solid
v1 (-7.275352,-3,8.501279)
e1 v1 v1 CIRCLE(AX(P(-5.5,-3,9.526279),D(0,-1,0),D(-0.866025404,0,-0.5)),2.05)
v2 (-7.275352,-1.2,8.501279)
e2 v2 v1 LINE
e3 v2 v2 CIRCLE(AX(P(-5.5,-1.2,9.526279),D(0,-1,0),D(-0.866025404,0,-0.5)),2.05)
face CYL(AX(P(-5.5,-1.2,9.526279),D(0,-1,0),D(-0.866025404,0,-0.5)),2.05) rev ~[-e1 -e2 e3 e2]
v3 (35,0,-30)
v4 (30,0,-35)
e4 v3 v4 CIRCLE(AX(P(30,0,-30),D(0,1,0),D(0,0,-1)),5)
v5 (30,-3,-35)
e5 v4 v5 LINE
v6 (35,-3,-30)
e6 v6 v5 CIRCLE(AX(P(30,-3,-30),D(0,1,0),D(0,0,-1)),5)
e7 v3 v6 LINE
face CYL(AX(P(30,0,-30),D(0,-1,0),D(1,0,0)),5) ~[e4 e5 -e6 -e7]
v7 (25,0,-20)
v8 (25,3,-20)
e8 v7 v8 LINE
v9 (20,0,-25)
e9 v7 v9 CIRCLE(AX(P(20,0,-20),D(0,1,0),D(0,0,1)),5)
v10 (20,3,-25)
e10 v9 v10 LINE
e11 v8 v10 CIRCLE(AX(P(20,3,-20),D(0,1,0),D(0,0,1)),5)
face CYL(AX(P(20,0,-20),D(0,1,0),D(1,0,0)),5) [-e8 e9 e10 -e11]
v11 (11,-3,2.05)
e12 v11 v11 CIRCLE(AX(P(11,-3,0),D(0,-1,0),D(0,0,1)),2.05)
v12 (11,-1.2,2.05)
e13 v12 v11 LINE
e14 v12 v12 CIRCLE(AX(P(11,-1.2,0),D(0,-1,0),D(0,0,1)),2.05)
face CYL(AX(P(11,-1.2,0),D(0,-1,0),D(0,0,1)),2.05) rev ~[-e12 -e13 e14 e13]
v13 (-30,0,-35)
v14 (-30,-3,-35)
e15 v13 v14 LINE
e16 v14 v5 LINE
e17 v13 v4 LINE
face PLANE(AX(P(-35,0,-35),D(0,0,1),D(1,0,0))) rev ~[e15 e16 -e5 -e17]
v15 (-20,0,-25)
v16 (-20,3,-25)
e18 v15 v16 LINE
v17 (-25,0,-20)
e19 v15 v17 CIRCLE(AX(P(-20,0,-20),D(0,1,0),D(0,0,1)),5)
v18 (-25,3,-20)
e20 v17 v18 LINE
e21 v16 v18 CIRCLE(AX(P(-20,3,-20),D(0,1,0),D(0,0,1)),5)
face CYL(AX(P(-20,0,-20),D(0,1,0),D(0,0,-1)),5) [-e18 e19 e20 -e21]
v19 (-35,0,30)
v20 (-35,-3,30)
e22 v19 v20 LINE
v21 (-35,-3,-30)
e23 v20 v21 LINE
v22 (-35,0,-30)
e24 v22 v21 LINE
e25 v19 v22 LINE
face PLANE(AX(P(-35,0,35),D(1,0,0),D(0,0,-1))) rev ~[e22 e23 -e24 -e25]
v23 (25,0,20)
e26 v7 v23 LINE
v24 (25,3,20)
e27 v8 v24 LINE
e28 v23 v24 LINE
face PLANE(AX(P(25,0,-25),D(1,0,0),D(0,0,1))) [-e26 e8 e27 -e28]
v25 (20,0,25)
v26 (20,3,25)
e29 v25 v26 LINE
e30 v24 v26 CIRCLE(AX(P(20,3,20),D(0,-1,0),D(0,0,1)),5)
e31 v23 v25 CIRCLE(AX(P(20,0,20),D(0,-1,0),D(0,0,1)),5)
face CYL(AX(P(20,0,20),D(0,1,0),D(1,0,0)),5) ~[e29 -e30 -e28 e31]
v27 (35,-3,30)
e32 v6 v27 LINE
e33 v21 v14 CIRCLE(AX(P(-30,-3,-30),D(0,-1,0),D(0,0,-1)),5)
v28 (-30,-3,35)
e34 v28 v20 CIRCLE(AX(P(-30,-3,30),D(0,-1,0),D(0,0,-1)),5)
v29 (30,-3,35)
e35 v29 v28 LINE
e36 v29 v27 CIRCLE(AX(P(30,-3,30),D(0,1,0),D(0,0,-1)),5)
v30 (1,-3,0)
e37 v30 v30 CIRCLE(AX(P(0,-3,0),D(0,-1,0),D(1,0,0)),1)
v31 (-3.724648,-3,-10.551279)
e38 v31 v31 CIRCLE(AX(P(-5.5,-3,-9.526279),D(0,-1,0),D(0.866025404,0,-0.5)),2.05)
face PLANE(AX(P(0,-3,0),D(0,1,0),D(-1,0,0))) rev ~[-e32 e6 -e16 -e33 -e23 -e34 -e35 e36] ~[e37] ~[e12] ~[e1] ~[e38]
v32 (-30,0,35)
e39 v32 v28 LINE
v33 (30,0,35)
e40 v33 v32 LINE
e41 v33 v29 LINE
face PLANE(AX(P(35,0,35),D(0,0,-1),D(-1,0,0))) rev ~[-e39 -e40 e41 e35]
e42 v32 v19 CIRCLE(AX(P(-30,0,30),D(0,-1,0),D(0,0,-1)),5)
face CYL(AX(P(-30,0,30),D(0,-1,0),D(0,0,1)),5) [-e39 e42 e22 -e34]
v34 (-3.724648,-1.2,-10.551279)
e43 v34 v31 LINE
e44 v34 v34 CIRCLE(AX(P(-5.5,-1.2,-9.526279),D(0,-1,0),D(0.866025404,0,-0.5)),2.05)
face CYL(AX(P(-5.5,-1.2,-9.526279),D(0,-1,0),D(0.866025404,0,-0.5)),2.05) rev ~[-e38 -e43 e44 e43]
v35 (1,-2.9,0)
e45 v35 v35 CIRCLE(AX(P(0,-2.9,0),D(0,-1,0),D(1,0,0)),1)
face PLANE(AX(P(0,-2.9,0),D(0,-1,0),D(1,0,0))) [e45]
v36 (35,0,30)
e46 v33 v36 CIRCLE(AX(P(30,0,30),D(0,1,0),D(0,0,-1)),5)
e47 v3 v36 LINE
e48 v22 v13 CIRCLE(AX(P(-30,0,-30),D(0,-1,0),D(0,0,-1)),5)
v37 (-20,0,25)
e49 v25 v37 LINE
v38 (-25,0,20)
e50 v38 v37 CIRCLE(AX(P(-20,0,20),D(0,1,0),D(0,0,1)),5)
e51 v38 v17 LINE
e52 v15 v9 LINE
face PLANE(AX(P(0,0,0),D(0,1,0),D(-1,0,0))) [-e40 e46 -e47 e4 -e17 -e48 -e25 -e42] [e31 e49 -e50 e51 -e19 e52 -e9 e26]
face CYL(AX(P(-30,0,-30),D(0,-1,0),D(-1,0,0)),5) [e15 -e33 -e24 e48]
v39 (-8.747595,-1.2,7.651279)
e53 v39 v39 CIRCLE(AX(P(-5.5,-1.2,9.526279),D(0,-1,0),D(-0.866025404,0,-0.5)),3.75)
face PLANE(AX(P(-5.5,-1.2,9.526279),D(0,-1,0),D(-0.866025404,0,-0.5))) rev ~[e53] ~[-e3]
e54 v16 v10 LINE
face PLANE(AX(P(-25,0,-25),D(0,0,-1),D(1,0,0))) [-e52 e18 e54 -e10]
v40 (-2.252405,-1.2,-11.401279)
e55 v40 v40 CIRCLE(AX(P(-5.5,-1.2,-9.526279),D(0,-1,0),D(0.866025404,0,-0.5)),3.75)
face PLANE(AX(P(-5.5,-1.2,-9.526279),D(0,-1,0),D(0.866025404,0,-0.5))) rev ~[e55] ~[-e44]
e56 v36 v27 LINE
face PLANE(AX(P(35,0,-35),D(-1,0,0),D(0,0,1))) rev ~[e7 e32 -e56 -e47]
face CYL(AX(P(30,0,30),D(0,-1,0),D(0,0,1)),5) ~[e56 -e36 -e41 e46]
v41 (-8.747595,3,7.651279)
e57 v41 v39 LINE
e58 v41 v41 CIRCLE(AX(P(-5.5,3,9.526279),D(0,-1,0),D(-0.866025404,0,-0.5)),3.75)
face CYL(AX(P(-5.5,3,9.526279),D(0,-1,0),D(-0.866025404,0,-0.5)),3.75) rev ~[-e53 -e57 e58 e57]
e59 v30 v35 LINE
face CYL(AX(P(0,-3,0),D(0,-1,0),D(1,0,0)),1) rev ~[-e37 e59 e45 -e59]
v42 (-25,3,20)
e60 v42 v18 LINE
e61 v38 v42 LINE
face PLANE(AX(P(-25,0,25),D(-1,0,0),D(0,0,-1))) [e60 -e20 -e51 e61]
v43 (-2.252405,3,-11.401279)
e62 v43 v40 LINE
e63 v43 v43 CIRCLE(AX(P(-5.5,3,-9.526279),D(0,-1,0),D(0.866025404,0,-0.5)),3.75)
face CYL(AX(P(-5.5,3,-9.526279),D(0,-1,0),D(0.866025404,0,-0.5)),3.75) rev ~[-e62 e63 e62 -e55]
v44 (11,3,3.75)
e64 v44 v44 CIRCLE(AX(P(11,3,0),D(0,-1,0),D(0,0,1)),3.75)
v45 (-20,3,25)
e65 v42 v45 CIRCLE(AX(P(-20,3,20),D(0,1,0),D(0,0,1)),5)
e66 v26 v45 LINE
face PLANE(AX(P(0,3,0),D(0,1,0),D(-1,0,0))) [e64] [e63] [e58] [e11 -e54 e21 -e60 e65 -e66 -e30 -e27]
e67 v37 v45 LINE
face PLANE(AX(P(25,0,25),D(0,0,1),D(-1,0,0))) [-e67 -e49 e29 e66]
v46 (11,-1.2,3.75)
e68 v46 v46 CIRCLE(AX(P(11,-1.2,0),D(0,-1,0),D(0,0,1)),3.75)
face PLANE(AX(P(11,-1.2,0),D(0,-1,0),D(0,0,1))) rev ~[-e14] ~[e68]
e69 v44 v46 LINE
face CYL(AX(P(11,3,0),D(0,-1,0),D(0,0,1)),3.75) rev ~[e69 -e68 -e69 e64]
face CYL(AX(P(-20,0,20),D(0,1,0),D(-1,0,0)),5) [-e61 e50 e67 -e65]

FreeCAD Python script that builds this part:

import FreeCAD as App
import Part
import Sketcher

V = App.Vector
Q = App.Units.Quantity


def edges_at(feature, points):
    """Names of the edges that pass closest to the given points."""
    edges = feature.Shape.Edges
    near = lambda p: min(range(len(edges)), key=lambda i: edges[i].distToShape(Part.Vertex(*p))[0])
    return sorted({f"Edge{near(p) + 1}" for p in points})

doc = App.newDocument("Part")
params = doc.addObject("Spreadsheet::Sheet", "Params")
for row, (alias, value) in enumerate([
    ("sketch1_width", "50 mm"),
    ("pad1_length", "3 mm"),
    ("sketch2_width", "70 mm"),
    ("pad2_length", "3 mm"),
    ("sketch3_diameter", "4.1 mm"),
    ("hole_diameter", "4.1 mm"),
    ("hole_cbore_diameter", "7.5 mm"),
    ("hole_cbore_depth", "4.2 mm"),
    ("fillet_radius", "5 mm"),
    ("sketch4_diameter", "2 mm"),
    ("pocket1_length", "0.1 mm"),
], start=1):
    params.set(f"A{row}", alias)
    params.set(f"B{row}", "=" + value)
    params.setAlias(f"B{row}", alias)

body = doc.addObject("PartDesign::Body", "Body")

# Sketch on XZ plane
sketch1 = body.newObject("Sketcher::SketchObject", "Sketch")
sketch1.AttachmentSupport = (doc.getObject("XZ_Plane"), [""])
sketch1.MapMode = "FlatFace"
sketch1.addGeometry([
    Part.LineSegment(V(-25, 25, 0), V(25, 25, 0)),
    Part.LineSegment(V(25, 25, 0), V(25, -25, 0)),
    Part.LineSegment(V(25, -25, 0), V(-25, -25, 0)),
    Part.LineSegment(V(-25, -25, 0), V(-25, 25, 0)),
], False)
sketch1.addConstraint([
    Sketcher.Constraint("Coincident", 0, 2, 1, 1),
    Sketcher.Constraint("Coincident", 1, 2, 2, 1),
    Sketcher.Constraint("Coincident", 2, 2, 3, 1),
    Sketcher.Constraint("Coincident", 3, 2, 0, 1),
    Sketcher.Constraint("Horizontal", 0),
    Sketcher.Constraint("Vertical", 1),
    Sketcher.Constraint("Horizontal", 2),
    Sketcher.Constraint("Vertical", 3),
    Sketcher.Constraint("Symmetric", 0, 2, 2, 2, -1, 1),
    Sketcher.Constraint("Equal", 2, 1),
    Sketcher.Constraint("DistanceX", 0, 1, 0, 2, Q("50 mm")),
])
sketch1.setExpression("Constraints[10]", "Params.sketch1_width")
pad1 = body.newObject("PartDesign::Pad", "Pad")
pad1.Profile = sketch1
pad1.setExpression("Length", "Params.pad1_length")
pad1.Reversed = True

# Sketch on XZ plane
sketch2 = body.newObject("Sketcher::SketchObject", "Sketch001")
sketch2.AttachmentSupport = (doc.getObject("XZ_Plane"), [""])
sketch2.MapMode = "FlatFace"
sketch2.addGeometry([
    Part.LineSegment(V(-35, 35, 0), V(35, 35, 0)),
    Part.LineSegment(V(35, 35, 0), V(35, -35, 0)),
    Part.LineSegment(V(35, -35, 0), V(-35, -35, 0)),
    Part.LineSegment(V(-35, -35, 0), V(-35, 35, 0)),
], False)
sketch2.addConstraint([
    Sketcher.Constraint("Coincident", 0, 2, 1, 1),
    Sketcher.Constraint("Coincident", 1, 2, 2, 1),
    Sketcher.Constraint("Coincident", 2, 2, 3, 1),
    Sketcher.Constraint("Coincident", 3, 2, 0, 1),
    Sketcher.Constraint("Horizontal", 0),
    Sketcher.Constraint("Vertical", 1),
    Sketcher.Constraint("Horizontal", 2),
    Sketcher.Constraint("Vertical", 3),
    Sketcher.Constraint("Symmetric", 0, 2, 2, 2, -1, 1),
    Sketcher.Constraint("Equal", 2, 1),
    Sketcher.Constraint("DistanceX", 0, 1, 0, 2, Q("70 mm")),
])
sketch2.setExpression("Constraints[10]", "Params.sketch2_width")
pad2 = body.newObject("PartDesign::Pad", "Pad001")
pad2.Profile = sketch2
pad2.setExpression("Length", "Params.pad2_length")

# Sketch on XZ plane
sketch3 = body.newObject("Sketcher::SketchObject", "Sketch002")
sketch3.AttachmentSupport = (doc.getObject("XZ_Plane"), [""])
sketch3.MapMode = "FlatFace"
sketch3.AttachmentOffset = App.Placement(V(0, 0, -3), App.Rotation())
sketch3.addGeometry(Part.Circle(V(11, 0, 0), V(0, 0, 1), 2), False)
sketch3.addConstraint([
    Sketcher.Constraint("PointOnObject", 0, 3, -1),
    Sketcher.Constraint("Diameter", 0, Q("4.1 mm")),
    Sketcher.Constraint("DistanceX", -1, 1, 0, 3, Q("11 mm")),
])
sketch3.setExpression("Constraints[1]", "Params.sketch3_diameter")
doc.recompute()
hole = body.newObject("PartDesign::Hole", "Hole")
hole.Profile = sketch3
hole.ThreadType = "None"
hole.setExpression("Diameter", "Params.hole_diameter")
hole.DepthType = "ThroughAll"
hole.HoleCutType = "Counterbore"
hole.setExpression("HoleCutDiameter", "Params.hole_cbore_diameter")
hole.setExpression("HoleCutDepth", "Params.hole_cbore_depth")
hole.Reversed = True
doc.recompute()

polarpattern = body.newObject("PartDesign::PolarPattern", "PolarPattern")
polarpattern.Originals = [hole]
polarpattern.Axis = (doc.getObject("Y_Axis"), [""])
polarpattern.Angle = 360
polarpattern.Occurrences = 3
body.Tip = polarpattern
doc.recompute()

fillet = body.newObject("PartDesign::Fillet", "Fillet")
fillet.Base = (polarpattern, edges_at(polarpattern, [
    (35, -1.5, 35),
    (-35, -1.5, 35),
    (-35, -1.5, -35),
    (35, -1.5, -35),
    (25, 1.5, -25),
    (25, 1.5, 25),
    (-25, 1.5, 25),
    (-25, 1.5, -25),
]))
fillet.setExpression("Radius", "Params.fillet_radius")

# Sketch on XZ plane
sketch4 = body.newObject("Sketcher::SketchObject", "Sketch003")
sketch4.AttachmentSupport = (doc.getObject("XZ_Plane"), [""])
sketch4.MapMode = "FlatFace"
sketch4.AttachmentOffset = App.Placement(V(0, 0, 3), App.Rotation())
sketch4.addGeometry(Part.Circle(V(0, 0, 0), V(0, 0, 1), 1), False)
sketch4.addConstraint([
    Sketcher.Constraint("Coincident", 0, 3, -1, 1),
    Sketcher.Constraint("Diameter", 0, Q("2 mm")),
])
sketch4.setExpression("Constraints[1]", "Params.sketch4_diameter")
pocket1 = body.newObject("PartDesign::Pocket", "Pocket")
pocket1.Profile = sketch4
pocket1.setExpression("Length", "Params.pocket1_length")

doc.recompute()
